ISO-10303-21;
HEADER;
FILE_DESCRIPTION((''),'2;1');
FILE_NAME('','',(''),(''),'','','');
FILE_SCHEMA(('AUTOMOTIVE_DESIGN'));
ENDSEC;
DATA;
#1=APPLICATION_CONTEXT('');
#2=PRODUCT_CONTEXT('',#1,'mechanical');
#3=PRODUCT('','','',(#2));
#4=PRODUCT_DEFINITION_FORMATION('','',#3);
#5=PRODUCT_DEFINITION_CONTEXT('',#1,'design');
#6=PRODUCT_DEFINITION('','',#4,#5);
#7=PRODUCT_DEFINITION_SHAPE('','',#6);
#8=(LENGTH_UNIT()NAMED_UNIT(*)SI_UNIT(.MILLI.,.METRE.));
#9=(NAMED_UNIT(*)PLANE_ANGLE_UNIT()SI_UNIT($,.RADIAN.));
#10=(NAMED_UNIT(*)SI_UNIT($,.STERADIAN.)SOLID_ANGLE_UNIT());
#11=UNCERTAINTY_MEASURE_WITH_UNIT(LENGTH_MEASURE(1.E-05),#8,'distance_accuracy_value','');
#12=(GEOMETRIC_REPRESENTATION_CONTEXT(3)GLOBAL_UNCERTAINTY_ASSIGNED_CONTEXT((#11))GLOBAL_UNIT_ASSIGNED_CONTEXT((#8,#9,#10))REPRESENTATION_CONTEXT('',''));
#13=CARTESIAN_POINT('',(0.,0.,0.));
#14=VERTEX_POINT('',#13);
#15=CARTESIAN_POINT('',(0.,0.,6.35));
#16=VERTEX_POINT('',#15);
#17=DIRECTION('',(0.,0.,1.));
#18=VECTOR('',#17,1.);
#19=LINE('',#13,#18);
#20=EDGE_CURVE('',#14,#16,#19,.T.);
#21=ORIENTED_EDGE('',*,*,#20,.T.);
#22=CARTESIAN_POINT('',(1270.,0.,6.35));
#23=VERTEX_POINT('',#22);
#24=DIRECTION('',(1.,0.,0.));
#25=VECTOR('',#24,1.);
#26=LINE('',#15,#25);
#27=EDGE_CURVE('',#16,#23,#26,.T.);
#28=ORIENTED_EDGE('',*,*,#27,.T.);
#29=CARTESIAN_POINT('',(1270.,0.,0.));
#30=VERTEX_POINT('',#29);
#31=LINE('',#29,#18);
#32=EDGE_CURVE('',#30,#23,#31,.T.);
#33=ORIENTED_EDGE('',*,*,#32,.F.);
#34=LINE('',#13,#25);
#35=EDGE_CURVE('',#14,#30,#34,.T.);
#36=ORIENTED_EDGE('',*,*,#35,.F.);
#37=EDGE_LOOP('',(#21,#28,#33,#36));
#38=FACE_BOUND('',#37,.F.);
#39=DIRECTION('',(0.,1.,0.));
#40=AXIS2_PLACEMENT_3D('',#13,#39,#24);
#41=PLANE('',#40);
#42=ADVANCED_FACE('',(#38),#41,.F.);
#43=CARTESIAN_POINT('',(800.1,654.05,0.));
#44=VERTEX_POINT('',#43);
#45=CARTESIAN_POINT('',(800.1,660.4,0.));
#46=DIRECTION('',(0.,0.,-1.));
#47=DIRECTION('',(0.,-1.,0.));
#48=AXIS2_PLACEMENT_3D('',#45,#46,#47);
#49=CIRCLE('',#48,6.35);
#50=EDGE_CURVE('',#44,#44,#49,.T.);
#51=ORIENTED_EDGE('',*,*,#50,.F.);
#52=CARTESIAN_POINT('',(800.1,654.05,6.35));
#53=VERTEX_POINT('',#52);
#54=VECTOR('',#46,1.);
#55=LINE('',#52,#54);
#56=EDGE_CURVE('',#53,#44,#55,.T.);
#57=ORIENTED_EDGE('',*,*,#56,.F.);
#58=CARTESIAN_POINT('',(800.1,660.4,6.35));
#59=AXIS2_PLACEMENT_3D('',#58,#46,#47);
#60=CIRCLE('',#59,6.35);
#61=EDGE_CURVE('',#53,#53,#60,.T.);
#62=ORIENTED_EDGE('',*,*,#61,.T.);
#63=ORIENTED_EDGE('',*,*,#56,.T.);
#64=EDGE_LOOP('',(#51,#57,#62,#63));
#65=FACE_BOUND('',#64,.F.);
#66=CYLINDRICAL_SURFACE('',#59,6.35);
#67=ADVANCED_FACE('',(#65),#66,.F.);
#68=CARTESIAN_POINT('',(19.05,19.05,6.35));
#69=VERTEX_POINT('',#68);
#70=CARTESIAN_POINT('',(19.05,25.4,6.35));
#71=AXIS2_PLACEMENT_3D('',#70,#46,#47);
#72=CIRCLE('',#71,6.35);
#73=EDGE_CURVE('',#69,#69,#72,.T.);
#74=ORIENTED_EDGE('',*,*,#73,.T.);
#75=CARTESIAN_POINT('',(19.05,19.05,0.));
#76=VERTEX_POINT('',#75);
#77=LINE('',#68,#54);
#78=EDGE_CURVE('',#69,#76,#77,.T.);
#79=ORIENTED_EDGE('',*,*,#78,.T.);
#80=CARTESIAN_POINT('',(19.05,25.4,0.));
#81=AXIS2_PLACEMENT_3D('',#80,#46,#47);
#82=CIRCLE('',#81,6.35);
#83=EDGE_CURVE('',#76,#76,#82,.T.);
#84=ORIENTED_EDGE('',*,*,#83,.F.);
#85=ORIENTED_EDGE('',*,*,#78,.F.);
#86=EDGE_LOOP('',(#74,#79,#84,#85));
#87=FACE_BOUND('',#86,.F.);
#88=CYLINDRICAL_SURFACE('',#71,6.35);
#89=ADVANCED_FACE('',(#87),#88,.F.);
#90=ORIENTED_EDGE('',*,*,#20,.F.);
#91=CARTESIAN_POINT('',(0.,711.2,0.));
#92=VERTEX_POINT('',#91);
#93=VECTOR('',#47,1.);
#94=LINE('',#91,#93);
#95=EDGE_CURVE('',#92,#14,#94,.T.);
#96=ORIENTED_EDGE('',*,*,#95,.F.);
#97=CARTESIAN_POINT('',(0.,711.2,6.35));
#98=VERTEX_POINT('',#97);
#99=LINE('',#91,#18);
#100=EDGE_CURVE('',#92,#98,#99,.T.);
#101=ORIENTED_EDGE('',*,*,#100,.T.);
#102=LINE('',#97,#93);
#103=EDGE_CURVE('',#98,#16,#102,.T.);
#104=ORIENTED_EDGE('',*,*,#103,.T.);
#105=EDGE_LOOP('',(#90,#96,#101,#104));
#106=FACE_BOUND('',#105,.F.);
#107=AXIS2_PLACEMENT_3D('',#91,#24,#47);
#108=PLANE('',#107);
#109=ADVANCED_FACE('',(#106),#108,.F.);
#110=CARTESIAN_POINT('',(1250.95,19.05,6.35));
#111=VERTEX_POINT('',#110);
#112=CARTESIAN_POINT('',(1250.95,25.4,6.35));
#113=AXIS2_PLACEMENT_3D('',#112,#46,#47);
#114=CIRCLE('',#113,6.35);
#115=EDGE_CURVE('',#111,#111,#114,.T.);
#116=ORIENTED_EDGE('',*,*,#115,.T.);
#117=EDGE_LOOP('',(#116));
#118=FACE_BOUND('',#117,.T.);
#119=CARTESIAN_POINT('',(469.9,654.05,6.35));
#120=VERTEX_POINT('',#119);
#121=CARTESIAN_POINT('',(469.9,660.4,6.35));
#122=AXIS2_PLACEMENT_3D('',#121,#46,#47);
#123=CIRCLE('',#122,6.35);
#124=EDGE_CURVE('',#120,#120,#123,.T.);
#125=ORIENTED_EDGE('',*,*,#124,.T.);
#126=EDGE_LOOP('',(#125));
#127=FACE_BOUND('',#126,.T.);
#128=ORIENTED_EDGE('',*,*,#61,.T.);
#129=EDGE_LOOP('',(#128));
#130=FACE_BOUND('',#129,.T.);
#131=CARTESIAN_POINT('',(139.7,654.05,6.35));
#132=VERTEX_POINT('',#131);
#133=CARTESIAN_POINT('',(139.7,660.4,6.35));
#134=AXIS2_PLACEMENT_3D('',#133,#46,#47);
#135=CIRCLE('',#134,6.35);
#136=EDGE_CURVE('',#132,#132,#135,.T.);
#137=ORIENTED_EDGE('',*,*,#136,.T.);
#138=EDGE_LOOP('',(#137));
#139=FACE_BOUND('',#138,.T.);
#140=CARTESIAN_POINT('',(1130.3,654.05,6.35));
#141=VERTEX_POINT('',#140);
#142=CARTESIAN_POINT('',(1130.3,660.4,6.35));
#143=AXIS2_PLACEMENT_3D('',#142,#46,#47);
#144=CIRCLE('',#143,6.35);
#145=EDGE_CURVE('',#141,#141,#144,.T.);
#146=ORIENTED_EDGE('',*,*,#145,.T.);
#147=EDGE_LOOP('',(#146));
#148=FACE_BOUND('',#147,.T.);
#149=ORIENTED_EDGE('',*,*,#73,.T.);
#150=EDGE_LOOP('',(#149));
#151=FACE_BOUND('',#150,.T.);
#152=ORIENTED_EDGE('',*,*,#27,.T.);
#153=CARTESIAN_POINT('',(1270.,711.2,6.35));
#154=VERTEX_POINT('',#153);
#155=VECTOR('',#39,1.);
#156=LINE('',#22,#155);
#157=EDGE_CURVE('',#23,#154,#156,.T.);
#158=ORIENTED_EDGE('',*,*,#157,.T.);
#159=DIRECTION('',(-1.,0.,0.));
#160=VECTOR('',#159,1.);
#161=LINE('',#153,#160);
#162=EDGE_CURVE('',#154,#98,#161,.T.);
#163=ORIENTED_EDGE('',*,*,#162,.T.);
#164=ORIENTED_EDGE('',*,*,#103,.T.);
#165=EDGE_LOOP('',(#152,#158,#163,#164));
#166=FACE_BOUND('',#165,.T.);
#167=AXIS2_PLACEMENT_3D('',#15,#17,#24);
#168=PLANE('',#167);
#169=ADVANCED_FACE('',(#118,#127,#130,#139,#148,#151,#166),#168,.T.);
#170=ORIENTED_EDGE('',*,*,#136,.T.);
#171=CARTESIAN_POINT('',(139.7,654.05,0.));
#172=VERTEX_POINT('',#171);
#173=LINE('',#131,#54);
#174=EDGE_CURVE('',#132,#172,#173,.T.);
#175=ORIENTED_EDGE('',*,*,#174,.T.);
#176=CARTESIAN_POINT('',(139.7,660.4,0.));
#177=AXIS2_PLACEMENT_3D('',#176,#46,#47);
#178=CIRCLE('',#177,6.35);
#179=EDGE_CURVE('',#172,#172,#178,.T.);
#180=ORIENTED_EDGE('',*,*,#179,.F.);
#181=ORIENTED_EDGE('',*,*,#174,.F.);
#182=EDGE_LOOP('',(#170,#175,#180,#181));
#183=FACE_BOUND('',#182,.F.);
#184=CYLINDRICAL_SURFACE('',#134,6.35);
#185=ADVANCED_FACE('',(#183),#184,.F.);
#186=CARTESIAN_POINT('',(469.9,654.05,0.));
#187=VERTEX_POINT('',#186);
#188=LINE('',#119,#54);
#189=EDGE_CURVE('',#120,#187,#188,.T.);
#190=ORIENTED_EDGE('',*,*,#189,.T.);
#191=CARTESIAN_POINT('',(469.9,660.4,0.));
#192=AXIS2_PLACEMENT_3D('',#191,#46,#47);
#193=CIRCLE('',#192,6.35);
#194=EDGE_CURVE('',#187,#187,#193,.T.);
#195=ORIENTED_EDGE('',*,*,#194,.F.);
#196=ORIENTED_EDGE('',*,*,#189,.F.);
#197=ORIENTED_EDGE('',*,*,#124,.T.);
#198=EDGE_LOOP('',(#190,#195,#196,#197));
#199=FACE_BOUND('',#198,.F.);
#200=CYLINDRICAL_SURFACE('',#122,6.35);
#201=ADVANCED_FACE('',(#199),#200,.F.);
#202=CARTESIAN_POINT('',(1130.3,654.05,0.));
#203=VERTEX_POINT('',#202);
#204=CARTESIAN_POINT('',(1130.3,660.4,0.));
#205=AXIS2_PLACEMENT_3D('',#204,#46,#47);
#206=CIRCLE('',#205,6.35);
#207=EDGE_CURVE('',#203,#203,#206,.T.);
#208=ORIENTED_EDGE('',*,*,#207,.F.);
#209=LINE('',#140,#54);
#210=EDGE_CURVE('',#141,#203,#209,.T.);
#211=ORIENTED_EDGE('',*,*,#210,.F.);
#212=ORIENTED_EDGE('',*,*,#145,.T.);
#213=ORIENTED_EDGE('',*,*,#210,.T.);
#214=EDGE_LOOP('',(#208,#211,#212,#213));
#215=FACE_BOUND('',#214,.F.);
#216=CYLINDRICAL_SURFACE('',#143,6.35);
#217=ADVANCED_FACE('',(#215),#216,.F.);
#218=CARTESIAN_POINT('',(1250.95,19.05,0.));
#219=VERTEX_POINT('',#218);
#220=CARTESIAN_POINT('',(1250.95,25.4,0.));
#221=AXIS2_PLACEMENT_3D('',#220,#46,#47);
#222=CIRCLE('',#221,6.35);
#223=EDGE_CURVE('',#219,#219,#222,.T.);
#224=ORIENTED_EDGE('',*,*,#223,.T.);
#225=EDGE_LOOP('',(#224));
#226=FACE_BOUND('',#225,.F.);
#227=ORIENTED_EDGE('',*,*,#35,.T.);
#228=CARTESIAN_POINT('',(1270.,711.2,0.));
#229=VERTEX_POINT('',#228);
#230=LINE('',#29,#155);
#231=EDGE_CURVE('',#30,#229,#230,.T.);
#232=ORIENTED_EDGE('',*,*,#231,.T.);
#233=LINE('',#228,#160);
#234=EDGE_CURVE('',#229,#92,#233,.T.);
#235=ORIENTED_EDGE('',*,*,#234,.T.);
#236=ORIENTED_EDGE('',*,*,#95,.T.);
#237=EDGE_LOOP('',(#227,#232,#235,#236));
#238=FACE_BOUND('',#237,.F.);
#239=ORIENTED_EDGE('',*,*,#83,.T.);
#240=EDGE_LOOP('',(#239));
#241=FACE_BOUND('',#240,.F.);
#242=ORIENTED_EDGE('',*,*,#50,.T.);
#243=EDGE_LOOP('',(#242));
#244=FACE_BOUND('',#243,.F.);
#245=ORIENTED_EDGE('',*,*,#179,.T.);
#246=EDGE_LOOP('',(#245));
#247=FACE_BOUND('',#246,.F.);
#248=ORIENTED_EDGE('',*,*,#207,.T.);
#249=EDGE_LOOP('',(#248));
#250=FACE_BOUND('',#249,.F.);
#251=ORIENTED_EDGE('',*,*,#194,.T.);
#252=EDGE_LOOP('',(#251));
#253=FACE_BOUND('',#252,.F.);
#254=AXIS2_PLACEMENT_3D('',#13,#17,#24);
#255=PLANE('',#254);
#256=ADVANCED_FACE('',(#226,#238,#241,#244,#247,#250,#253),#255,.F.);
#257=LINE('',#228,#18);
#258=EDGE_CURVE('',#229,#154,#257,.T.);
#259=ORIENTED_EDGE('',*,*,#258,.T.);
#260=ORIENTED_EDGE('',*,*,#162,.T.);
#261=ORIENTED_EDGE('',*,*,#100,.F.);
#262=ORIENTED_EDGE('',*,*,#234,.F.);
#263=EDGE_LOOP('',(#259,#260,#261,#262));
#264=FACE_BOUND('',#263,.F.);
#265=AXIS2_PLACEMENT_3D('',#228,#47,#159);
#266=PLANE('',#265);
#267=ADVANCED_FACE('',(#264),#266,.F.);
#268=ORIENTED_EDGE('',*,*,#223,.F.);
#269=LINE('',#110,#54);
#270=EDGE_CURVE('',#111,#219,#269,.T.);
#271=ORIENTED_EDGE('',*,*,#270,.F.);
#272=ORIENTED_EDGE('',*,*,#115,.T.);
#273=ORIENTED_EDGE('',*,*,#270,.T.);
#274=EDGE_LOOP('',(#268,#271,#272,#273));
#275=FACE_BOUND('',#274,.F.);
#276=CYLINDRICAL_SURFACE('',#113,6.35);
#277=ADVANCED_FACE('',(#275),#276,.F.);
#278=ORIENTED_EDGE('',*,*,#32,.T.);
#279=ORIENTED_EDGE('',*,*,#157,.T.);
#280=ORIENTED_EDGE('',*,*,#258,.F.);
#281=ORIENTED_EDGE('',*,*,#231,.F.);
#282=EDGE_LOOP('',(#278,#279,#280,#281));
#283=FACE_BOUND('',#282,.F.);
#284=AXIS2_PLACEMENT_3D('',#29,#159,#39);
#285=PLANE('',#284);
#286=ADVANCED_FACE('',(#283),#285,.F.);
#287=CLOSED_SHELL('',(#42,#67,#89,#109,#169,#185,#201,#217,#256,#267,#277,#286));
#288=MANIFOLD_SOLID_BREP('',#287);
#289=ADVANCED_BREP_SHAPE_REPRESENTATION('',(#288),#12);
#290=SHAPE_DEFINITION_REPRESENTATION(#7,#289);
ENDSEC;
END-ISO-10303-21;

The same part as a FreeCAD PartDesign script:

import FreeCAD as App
import Part
import Sketcher
from FreeCAD import Vector
Q = App.Units.Quantity

doc = App.newDocument("Part")
body = doc.addObject("PartDesign::Body", "Body")

# Sketch on XY plane
sketch1 = doc.addObject("Sketcher::SketchObject", "Sketch")
body.addObject(sketch1)
sketch1.AttachmentSupport = (doc.XY_Plane, [""])
sketch1.MapMode = "FlatFace"
sketch1.addGeometry(Part.LineSegment(Vector(0, 711, 0), Vector(0, 0, 0)), False)
sketch1.addGeometry(Part.LineSegment(Vector(0, 0, 0), Vector(1270, 0, 0)), False)
sketch1.addGeometry(Part.LineSegment(Vector(1270, 0, 0), Vector(1270, 711, 0)), False)
sketch1.addGeometry(Part.LineSegment(Vector(1270, 711, 0), Vector(0, 711, 0)), False)
sketch1.addConstraint(Sketcher.Constraint("Coincident", 0, 2, 1, 1))
sketch1.addConstraint(Sketcher.Constraint("Coincident", 1, 2, 2, 1))
sketch1.addConstraint(Sketcher.Constraint("Coincident", 2, 2, 3, 1))
sketch1.addConstraint(Sketcher.Constraint("Coincident", 3, 2, 0, 1))
sketch1.addConstraint(Sketcher.Constraint("Vertical", 0))
sketch1.addConstraint(Sketcher.Constraint("Horizontal", 1))
sketch1.addConstraint(Sketcher.Constraint("Vertical", 2))
sketch1.addConstraint(Sketcher.Constraint("Horizontal", 3))
sketch1.addConstraint(Sketcher.Constraint("Coincident", 0, 2, -1, 1))
sketch1.addConstraint(Sketcher.Constraint("DistanceX", 1, 1, 1, 2, Q("50 in")))
sketch1.addConstraint(Sketcher.Constraint("DistanceY", 0, 2, 0, 1, Q("28 in")))
pad1 = doc.addObject("PartDesign::Pad", "Pad")
body.addObject(pad1)
pad1.Profile = sketch1
pad1.Length = Q("0.25 in")

# Sketch on XY plane
sketch2 = doc.addObject("Sketcher::SketchObject", "Sketch001")
body.addObject(sketch2)
sketch2.AttachmentSupport = (doc.XY_Plane, [""])
sketch2.MapMode = "FlatFace"
sketch2.AttachmentOffset = App.Placement(Vector(0, 0, 0.25 * 25.4), App.Rotation())
sketch2.addGeometry(Part.Circle(Vector(140, 660, 0), Vector(0, 0, 1), 6), False)
sketch2.addConstraint(Sketcher.Constraint("Diameter", 0, Q("0.5 in")))
sketch2.addConstraint(Sketcher.Constraint("DistanceY", -1, 1, 0, 3, Q("26 in")))
sketch2.addConstraint(Sketcher.Constraint("DistanceX", -1, 1, 0, 3, Q("5.5 in")))
doc.recompute()
hole = doc.addObject("PartDesign::Hole", "Hole")
body.addObject(hole)
hole.Profile = sketch2
hole.ThreadType = "None"
hole.Diameter = Q("0.5 in")
hole.DepthType = "ThroughAll"
doc.recompute()

linearpattern = doc.addObject("PartDesign::LinearPattern", "LinearPattern")
body.addObject(linearpattern)
linearpattern.Originals = [hole]
linearpattern.Direction = (doc.X_Axis, [""])
linearpattern.Mode = "offset"
linearpattern.Offset = Q("13 in")
linearpattern.Occurrences = 4
body.Tip = linearpattern

# Sketch on XY plane
sketch3 = doc.addObject("Sketcher::SketchObject", "Sketch002")
body.addObject(sketch3)
sketch3.AttachmentSupport = (doc.XY_Plane, [""])
sketch3.MapMode = "FlatFace"
sketch3.AttachmentOffset = App.Placement(Vector(0, 0, 0.25 * 25.4), App.Rotation())
sketch3.addGeometry(Part.Circle(Vector(19, 25, 0), Vector(0, 0, 1), 6), False)
sketch3.addConstraint(Sketcher.Constraint("Diameter", 0, Q("0.5 in")))
sketch3.addConstraint(Sketcher.Constraint("DistanceY", -1, 1, 0, 3, Q("1 in")))
sketch3.addConstraint(Sketcher.Constraint("DistanceX", -1, 1, 0, 3, Q("0.75 in")))
doc.recompute()
hole2 = doc.addObject("PartDesign::Hole", "Hole001")
body.addObject(hole2)
hole2.Profile = sketch3
hole2.ThreadType = "None"
hole2.Diameter = Q("0.5 in")
hole2.DepthType = "ThroughAll"
doc.recompute()

linearpattern2 = doc.addObject("PartDesign::LinearPattern", "LinearPattern001")
body.addObject(linearpattern2)
linearpattern2.Originals = [hole2]
linearpattern2.Direction = (doc.X_Axis, [""])
linearpattern2.Mode = "offset"
linearpattern2.Offset = Q("48.5 in")
linearpattern2.Occurrences = 2
body.Tip = linearpattern2

doc.recompute()
